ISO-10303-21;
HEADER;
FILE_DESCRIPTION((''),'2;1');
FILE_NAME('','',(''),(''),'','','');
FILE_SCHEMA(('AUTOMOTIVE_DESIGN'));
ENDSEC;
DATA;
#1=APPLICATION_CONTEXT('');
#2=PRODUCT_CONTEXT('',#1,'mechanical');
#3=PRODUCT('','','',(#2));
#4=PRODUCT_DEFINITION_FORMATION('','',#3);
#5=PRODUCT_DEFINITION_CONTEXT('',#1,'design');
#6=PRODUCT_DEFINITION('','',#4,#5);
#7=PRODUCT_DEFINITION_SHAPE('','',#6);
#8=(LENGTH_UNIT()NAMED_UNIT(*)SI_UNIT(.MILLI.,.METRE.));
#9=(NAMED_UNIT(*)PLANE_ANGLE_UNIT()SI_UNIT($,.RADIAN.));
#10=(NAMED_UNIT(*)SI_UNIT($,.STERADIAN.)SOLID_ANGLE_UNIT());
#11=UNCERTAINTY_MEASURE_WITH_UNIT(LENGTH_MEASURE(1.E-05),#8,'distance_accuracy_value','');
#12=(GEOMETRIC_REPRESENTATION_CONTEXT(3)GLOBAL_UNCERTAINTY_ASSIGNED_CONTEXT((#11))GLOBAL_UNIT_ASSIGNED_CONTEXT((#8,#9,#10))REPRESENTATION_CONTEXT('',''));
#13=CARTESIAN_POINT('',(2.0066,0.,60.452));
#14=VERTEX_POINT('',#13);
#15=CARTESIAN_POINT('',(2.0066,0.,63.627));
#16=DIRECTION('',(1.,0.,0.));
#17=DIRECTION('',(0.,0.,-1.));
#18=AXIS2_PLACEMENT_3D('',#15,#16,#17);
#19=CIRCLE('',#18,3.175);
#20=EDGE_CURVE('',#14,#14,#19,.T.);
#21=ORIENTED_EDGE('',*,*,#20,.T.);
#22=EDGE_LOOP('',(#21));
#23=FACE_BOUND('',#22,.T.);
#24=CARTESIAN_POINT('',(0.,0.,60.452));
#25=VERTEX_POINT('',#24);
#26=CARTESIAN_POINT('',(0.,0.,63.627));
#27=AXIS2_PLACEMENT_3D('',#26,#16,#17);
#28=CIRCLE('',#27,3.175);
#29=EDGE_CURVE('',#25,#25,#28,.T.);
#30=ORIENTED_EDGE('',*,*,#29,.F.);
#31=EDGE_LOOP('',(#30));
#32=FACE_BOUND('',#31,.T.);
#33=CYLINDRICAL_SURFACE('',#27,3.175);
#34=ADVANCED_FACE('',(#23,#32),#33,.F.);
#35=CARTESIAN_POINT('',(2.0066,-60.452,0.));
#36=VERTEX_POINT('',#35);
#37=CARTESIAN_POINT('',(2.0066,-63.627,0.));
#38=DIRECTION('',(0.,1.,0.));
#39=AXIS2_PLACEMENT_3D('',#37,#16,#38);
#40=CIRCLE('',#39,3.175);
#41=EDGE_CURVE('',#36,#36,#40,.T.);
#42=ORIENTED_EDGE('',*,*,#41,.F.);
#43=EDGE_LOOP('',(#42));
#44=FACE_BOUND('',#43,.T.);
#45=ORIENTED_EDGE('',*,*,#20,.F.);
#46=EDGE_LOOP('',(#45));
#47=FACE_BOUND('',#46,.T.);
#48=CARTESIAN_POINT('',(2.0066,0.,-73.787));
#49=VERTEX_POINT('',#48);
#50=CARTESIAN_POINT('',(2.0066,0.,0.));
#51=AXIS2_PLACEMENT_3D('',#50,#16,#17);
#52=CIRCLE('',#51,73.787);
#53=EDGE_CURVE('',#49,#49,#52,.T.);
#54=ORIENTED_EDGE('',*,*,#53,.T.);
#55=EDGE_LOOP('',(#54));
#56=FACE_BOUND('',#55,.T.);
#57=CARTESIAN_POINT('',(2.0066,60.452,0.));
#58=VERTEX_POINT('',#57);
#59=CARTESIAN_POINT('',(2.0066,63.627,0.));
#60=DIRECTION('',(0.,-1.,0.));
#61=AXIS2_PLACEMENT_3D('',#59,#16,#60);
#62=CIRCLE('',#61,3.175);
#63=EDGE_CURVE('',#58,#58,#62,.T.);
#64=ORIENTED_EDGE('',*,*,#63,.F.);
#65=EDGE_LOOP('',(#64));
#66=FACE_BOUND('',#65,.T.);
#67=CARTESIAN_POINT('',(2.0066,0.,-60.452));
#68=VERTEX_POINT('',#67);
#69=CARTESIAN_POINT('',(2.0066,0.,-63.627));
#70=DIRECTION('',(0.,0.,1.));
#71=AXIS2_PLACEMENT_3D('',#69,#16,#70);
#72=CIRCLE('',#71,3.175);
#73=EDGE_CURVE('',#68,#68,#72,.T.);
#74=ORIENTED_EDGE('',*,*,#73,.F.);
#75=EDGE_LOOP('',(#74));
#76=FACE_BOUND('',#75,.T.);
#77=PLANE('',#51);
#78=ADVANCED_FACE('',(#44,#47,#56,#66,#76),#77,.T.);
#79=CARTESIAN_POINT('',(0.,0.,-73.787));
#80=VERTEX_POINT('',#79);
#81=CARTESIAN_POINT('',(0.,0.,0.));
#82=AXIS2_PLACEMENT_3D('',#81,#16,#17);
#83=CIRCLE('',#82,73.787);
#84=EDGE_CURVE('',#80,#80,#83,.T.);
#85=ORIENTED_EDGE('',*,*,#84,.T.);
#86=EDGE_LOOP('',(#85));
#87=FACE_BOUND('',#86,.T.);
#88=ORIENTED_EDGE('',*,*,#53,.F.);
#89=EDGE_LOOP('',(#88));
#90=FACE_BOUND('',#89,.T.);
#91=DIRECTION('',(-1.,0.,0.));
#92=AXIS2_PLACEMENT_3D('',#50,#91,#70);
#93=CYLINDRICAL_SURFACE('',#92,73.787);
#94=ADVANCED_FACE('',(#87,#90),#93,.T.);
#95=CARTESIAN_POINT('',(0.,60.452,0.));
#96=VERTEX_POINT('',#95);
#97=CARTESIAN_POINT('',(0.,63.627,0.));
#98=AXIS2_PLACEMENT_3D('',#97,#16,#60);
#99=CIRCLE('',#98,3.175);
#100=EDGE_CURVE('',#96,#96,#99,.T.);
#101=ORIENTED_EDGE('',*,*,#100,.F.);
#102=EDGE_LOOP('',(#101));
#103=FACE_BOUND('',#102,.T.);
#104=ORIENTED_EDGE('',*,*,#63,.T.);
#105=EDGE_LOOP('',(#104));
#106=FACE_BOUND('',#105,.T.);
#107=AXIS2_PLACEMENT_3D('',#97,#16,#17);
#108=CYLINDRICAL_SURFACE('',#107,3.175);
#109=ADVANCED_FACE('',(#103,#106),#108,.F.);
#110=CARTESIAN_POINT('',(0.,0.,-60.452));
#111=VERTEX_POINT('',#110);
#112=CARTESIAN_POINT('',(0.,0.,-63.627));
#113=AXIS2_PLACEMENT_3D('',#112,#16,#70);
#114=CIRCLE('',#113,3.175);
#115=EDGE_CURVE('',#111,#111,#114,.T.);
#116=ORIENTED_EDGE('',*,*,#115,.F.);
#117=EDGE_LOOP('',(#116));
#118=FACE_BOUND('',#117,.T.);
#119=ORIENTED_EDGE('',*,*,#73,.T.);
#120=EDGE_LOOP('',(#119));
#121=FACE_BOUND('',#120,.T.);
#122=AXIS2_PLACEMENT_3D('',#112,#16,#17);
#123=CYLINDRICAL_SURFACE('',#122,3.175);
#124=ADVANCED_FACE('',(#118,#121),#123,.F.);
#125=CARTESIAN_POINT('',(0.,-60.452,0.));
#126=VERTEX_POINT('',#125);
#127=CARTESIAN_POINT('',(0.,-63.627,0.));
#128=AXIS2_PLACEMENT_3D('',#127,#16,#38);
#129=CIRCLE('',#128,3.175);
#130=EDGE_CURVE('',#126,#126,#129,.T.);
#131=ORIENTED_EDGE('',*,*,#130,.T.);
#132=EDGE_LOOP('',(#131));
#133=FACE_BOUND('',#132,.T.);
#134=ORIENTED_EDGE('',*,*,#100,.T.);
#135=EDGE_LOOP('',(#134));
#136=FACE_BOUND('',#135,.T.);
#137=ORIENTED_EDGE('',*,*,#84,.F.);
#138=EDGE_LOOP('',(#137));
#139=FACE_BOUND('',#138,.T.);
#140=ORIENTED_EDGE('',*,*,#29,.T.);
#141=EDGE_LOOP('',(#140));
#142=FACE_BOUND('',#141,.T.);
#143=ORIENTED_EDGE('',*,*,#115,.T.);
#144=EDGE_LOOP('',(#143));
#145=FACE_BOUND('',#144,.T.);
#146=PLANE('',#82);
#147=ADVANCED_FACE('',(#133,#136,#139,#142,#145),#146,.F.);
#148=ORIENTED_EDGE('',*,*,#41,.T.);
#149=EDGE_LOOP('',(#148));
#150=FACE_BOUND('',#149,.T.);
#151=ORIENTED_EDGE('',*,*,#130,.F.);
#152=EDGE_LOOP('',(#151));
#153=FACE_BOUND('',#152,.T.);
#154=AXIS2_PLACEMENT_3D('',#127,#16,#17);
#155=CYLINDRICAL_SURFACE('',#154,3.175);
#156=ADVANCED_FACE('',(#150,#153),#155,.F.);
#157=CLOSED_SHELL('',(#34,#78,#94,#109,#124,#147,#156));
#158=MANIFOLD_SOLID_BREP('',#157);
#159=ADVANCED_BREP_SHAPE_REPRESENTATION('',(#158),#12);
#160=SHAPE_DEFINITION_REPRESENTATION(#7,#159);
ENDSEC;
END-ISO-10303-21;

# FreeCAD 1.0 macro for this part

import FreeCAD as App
import Part
import Sketcher

V = App.Vector
Q = App.Units.Quantity

doc = App.newDocument("Part")
body = doc.addObject("PartDesign::Body", "Body")

sketch1 = body.newObject("Sketcher::SketchObject", "Sketch")
sketch1.AttachmentSupport = (doc.getObject("YZ_Plane"), [""])
sketch1.MapMode = "FlatFace"
sketch1.addGeometry(Part.Circle(V(0, 0, 0), V(0, 0, 1), 73.787), False)
sketch1.addConstraint(Sketcher.Constraint("Coincident", 0, 3, -1, 1))
sketch1.addConstraint(Sketcher.Constraint("Diameter", 0, Q("5.81 in")))
pad1 = body.newObject("PartDesign::Pad", "Pad")
pad1.Profile = sketch1
pad1.Length = Q("0.079 in")

sketch2 = body.newObject("Sketcher::SketchObject", "Sketch001")
sketch2.AttachmentSupport = (doc.getObject("YZ_Plane"), [""])
sketch2.MapMode = "FlatFace"
sketch2.AttachmentOffset = App.Placement(V(0, 0, 0.079 * 25.4), App.Rotation())
sketch2.addGeometry(Part.Circle(V(0, 63.627, 0), V(0, 0, 1), 3.175), False)
sketch2.addConstraint(Sketcher.Constraint("PointOnObject", 0, 3, -2))
sketch2.addConstraint(Sketcher.Constraint("Diameter", 0, Q("0.25 in")))
sketch2.addConstraint(Sketcher.Constraint("DistanceY", -1, 1, 0, 3, Q("2.505 in")))
pocket1 = body.newObject("PartDesign::Pocket", "Pocket")
pocket1.Profile = sketch2
pocket1.Type = "ThroughAll"
doc.recompute()

polarpattern = body.newObject("PartDesign::PolarPattern", "PolarPattern")
polarpattern.Originals = [pocket1]
polarpattern.Axis = (doc.getObject("X_Axis"), [""])
polarpattern.Angle = 360
polarpattern.Occurrences = 4
body.Tip = polarpattern

doc.recompute()
